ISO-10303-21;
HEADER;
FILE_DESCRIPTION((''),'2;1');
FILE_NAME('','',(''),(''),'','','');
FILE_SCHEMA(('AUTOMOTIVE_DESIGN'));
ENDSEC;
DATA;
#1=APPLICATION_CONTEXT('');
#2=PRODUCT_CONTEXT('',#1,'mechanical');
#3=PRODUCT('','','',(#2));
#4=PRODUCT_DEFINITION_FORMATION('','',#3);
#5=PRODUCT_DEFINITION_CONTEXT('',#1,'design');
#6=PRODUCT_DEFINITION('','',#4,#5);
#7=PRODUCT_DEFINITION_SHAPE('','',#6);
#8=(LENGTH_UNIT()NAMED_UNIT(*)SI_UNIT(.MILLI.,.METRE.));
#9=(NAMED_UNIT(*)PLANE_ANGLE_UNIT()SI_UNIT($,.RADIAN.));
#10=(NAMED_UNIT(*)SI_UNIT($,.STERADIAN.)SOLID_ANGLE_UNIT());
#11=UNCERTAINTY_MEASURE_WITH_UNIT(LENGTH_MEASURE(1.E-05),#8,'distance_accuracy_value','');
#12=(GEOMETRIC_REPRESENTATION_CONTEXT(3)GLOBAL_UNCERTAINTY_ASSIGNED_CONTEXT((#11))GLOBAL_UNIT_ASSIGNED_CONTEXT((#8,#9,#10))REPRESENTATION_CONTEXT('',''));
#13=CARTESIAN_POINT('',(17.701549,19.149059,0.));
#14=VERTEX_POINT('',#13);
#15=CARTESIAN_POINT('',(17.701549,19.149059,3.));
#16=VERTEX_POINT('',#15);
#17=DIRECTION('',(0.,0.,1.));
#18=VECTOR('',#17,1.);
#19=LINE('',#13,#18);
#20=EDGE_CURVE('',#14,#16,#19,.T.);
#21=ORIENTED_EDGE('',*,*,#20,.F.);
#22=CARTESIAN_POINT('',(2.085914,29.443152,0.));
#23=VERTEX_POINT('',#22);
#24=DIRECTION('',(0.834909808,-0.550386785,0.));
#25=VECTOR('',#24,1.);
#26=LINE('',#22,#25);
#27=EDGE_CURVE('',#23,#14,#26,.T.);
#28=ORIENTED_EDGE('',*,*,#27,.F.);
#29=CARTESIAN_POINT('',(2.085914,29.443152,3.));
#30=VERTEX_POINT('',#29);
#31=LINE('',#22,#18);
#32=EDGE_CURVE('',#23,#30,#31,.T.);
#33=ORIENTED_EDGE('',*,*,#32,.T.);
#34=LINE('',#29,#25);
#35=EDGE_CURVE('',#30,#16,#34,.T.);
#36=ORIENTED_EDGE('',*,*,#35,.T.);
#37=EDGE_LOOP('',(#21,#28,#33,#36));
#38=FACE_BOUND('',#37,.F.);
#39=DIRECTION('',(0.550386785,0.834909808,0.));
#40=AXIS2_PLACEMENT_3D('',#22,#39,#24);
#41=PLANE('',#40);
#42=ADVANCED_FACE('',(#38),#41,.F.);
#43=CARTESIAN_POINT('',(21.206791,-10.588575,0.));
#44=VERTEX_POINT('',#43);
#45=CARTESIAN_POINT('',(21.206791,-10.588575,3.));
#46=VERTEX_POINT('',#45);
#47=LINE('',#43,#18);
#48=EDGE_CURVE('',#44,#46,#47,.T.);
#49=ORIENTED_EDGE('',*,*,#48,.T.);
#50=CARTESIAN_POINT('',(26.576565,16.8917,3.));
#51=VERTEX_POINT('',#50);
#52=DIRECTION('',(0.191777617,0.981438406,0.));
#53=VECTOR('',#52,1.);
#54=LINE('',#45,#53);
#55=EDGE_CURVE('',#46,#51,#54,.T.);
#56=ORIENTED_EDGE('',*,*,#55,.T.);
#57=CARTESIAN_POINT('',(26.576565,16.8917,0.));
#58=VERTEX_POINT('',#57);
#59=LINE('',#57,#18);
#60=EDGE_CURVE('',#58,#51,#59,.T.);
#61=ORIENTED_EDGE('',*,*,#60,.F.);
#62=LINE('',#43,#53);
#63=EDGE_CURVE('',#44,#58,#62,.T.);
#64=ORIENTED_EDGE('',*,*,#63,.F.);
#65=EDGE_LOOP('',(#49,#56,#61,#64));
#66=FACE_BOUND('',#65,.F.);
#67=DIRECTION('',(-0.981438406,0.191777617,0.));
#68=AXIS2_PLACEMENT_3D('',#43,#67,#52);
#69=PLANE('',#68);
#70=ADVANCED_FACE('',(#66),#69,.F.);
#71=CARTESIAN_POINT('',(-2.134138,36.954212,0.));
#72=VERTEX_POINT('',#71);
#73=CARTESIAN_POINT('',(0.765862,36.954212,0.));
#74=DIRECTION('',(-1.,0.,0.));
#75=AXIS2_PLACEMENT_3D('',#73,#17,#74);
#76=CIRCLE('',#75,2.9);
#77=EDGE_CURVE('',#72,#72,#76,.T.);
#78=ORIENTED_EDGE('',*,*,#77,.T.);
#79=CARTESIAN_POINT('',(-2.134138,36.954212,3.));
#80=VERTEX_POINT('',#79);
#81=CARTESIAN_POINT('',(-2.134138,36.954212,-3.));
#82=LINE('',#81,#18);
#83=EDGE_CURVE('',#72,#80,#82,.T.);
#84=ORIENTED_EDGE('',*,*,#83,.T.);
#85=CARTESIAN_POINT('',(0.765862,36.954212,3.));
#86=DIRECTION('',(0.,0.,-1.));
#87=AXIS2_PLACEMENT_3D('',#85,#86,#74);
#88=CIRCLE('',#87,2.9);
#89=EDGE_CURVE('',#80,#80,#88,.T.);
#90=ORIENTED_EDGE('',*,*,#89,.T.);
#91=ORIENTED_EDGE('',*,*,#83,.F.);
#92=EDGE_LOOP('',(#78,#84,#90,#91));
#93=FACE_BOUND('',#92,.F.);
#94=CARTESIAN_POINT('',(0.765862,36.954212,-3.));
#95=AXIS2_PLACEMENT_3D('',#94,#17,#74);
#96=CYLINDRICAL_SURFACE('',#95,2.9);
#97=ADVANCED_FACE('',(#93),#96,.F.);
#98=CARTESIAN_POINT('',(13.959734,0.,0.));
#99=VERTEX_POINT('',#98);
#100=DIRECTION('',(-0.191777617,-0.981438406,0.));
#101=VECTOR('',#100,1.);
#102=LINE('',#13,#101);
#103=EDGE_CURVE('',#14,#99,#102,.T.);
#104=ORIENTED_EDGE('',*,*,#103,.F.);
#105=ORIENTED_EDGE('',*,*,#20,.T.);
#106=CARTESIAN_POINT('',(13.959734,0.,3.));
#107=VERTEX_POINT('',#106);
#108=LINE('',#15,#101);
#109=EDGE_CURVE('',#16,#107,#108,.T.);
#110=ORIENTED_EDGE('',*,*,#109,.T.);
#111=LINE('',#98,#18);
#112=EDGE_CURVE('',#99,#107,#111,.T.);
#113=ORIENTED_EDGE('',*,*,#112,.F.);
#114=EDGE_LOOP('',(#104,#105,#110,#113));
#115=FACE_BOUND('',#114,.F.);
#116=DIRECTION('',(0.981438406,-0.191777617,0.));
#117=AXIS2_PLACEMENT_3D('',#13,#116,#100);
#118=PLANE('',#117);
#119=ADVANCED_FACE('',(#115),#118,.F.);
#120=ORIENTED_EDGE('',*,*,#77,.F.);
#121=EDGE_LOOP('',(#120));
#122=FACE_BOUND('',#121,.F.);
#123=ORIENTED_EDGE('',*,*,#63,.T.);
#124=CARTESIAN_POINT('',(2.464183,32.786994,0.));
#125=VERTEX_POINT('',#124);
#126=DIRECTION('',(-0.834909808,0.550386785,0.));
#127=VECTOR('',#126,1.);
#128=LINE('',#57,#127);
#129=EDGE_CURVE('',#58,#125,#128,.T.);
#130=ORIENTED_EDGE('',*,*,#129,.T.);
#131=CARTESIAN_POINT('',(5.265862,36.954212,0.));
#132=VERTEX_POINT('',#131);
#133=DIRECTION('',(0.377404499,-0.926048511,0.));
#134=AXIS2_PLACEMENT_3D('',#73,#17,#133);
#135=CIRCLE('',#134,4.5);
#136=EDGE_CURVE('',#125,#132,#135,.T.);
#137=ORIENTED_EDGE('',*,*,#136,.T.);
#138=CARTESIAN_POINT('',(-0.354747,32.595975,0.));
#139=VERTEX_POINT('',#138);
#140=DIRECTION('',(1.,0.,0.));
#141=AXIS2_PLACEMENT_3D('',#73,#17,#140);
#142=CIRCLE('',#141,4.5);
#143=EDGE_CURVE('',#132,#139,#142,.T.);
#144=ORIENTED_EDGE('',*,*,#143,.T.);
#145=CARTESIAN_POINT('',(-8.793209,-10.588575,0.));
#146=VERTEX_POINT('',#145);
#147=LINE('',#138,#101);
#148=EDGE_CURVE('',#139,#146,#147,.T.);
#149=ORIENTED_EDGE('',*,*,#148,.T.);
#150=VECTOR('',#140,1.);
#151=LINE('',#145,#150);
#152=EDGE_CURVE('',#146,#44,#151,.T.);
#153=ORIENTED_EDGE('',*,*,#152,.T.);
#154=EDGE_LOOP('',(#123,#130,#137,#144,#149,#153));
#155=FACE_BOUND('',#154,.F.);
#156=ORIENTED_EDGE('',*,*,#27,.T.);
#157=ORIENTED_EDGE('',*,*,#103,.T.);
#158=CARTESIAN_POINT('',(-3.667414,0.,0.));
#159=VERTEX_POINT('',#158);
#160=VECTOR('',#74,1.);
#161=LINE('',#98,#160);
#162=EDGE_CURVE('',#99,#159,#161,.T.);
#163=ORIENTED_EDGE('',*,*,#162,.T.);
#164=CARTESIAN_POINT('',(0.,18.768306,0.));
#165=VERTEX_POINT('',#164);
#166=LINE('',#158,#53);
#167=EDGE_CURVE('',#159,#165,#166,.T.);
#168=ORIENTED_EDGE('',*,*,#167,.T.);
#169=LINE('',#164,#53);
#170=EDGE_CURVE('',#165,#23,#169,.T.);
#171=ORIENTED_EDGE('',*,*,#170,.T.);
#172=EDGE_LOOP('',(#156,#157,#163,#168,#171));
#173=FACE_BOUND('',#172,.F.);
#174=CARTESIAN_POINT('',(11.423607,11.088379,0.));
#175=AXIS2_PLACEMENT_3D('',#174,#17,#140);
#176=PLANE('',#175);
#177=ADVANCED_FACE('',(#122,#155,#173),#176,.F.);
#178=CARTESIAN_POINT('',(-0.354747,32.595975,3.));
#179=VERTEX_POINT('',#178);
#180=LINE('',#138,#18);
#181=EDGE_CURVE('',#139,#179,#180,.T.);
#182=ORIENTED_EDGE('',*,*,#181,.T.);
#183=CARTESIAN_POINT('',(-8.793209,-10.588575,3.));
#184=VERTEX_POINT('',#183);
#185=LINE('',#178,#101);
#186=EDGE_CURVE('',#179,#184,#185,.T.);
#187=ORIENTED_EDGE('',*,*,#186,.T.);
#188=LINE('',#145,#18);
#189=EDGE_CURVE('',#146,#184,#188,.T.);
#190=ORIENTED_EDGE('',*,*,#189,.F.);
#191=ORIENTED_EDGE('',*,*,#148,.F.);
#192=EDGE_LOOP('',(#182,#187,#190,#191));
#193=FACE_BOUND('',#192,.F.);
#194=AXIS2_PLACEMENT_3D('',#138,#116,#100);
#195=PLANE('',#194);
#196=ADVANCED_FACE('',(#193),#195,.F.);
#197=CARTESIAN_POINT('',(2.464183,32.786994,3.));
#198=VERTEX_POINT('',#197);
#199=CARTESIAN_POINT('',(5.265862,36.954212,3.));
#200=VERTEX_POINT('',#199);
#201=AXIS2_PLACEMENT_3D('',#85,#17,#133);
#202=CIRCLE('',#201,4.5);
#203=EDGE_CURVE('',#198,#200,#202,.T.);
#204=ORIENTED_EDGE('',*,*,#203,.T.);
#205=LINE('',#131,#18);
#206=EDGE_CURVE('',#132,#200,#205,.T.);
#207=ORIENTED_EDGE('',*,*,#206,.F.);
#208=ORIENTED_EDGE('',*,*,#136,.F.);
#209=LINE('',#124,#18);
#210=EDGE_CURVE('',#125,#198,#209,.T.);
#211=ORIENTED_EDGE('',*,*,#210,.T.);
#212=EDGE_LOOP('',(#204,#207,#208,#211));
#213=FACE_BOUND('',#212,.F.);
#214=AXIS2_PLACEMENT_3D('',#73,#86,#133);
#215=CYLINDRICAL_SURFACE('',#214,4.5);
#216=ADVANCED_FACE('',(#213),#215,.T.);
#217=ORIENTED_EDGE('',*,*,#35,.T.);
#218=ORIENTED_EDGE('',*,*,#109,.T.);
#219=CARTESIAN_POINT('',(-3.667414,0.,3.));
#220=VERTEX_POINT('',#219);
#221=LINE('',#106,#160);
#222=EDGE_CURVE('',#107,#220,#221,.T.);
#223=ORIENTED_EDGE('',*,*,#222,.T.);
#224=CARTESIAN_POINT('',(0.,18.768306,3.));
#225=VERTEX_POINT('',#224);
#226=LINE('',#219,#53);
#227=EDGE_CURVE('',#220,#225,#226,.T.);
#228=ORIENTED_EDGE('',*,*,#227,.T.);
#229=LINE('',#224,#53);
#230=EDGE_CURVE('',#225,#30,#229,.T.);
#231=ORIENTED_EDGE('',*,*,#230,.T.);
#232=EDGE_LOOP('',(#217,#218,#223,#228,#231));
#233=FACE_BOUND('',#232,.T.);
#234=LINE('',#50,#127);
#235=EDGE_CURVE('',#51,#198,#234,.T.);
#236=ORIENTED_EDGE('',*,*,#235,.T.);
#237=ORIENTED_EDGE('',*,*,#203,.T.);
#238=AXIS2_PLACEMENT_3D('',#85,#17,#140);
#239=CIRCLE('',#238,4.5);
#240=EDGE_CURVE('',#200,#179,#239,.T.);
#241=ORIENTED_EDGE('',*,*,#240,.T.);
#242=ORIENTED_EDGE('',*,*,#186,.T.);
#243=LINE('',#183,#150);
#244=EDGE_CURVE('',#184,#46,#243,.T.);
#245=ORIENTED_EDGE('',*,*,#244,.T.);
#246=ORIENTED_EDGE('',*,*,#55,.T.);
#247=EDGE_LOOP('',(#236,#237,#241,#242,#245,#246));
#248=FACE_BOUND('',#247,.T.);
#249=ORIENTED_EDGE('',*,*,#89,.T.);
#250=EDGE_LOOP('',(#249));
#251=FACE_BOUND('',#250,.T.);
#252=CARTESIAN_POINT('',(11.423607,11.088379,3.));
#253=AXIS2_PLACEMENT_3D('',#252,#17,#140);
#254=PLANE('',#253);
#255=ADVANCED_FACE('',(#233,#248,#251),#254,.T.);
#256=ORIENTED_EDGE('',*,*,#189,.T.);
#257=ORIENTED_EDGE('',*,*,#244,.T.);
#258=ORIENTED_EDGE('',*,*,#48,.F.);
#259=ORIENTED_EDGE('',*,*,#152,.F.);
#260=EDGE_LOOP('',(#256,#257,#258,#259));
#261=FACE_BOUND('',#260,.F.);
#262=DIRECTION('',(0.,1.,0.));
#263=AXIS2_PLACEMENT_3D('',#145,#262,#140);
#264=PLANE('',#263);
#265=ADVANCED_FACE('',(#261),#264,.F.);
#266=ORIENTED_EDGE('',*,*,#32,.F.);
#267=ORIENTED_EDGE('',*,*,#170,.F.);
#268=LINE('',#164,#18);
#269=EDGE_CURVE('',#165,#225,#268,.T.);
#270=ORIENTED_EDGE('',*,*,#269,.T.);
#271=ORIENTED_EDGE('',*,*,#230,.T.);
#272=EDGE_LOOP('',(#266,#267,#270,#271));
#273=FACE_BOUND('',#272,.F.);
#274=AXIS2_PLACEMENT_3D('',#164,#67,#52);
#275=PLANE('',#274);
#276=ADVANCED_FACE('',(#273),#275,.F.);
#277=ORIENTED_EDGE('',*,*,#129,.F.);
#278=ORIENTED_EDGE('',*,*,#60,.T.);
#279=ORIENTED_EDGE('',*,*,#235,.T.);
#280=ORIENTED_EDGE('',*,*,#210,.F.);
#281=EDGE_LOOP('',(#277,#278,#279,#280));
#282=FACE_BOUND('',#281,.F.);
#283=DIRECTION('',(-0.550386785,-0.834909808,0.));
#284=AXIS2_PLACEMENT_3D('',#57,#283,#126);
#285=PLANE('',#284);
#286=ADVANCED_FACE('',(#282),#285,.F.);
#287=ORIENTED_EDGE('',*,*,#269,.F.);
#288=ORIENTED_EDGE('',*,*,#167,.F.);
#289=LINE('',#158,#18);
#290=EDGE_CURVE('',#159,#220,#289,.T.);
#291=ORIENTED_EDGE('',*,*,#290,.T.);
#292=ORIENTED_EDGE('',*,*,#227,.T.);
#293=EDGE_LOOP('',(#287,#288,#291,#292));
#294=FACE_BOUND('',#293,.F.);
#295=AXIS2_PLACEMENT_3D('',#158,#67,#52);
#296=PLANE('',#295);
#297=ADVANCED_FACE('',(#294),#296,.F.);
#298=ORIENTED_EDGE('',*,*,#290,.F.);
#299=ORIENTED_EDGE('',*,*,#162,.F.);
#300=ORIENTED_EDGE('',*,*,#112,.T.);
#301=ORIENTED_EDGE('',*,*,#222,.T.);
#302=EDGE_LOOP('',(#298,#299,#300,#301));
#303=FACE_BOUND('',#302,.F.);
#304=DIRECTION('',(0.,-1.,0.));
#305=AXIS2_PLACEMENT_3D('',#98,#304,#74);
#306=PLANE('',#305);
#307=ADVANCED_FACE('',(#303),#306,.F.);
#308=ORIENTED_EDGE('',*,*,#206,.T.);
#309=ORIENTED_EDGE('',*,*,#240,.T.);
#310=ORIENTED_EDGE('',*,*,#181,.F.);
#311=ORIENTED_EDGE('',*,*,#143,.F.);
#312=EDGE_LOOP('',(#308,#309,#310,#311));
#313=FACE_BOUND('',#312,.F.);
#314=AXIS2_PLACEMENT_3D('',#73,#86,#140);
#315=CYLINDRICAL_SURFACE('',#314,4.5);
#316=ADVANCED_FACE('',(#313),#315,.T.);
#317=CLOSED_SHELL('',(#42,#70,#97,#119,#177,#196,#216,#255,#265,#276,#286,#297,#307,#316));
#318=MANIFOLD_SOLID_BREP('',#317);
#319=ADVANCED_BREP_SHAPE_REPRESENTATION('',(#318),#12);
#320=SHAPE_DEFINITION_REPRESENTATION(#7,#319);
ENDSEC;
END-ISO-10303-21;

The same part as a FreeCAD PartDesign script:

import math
import FreeCAD as App
import Part
import Sketcher

doc = App.newDocument("Part")
body = doc.addObject("PartDesign::Body", "Body")

# Sketch on XY plane
sketch1 = doc.addObject("Sketcher::SketchObject", "Sketch")
body.addObject(sketch1)
sketch1.AttachmentSupport = (doc.XY_Plane, [""])
sketch1.MapMode = "FlatFace"
sketch1.addGeometry([
    Part.ArcOfCircle(Part.Circle(App.Vector(0.765862, 36.954212, 0), App.Vector(0, 0, 1), 4.5), math.radians(0), math.radians(255.58021)),  # 0
    Part.LineSegment(App.Vector(-0.354747, 32.595975, 0), App.Vector(-8.793209, -10.588575, 0)),  # 1
    Part.LineSegment(App.Vector(-8.793209, -10.588575, 0), App.Vector(21.206791, -10.588575, 0)),  # 2
    Part.LineSegment(App.Vector(21.206791, -10.588575, 0), App.Vector(26.576565, 16.8917, 0)),  # 3
    Part.LineSegment(App.Vector(26.576565, 16.8917, 0), App.Vector(2.464183, 32.786994, 0)),  # 4
    Part.ArcOfCircle(Part.Circle(App.Vector(0.765862, 36.954212, 0), App.Vector(0, 0, 1), 4.5), math.radians(-67.826996), math.radians(0)),  # 5
    Part.LineSegment(App.Vector(0, 18.768306, 0), App.Vector(2.085914, 29.443152, 0)),  # 6
    Part.LineSegment(App.Vector(2.085914, 29.443152, 0), App.Vector(17.701549, 19.149059, 0)),  # 7
    Part.LineSegment(App.Vector(17.701549, 19.149059, 0), App.Vector(13.959734, 0, 0)),  # 8
    Part.LineSegment(App.Vector(13.959734, 0, 0), App.Vector(-3.667414, 0, 0)),  # 9
    Part.LineSegment(App.Vector(-3.667414, 0, 0), App.Vector(0, 18.768306, 0)),  # 10
], False)
sketch1.addConstraint([
    Sketcher.Constraint("Coincident", 0, 2, 1, 1),
    Sketcher.Constraint("Coincident", 1, 2, 2, 1),
    Sketcher.Constraint("Coincident", 2, 2, 3, 1),
    Sketcher.Constraint("Coincident", 3, 2, 4, 1),
    Sketcher.Constraint("Coincident", 4, 2, 5, 1),
    Sketcher.Constraint("Coincident", 5, 2, 0, 1),
    Sketcher.Constraint("Coincident", 6, 2, 7, 1),
    Sketcher.Constraint("Coincident", 7, 2, 8, 1),
    Sketcher.Constraint("Coincident", 8, 2, 9, 1),
    Sketcher.Constraint("Coincident", 9, 2, 10, 1),
    Sketcher.Constraint("Coincident", 10, 2, 6, 1),
    Sketcher.Constraint("Horizontal", 2),
    Sketcher.Constraint("Horizontal", 9),
    Sketcher.Constraint("Coincident", 5, 3, 0, 3),
    Sketcher.Constraint("PointOnObject", 8, 2, -1),
    Sketcher.Constraint("PointOnObject", 10, 2, -2),
    Sketcher.Constraint("Radius", 0, 4.5),
    Sketcher.Constraint("DistanceX", 2, 1, 2, 2, 30.0),
    Sketcher.Constraint("Distance", 3, 28.0),
    Sketcher.Constraint("DistanceX", 9, 2, 9, 1, 17.627148),
    Sketcher.Constraint("DistanceY", -1, 1, 3, 2, 16.8917),
    Sketcher.Constraint("Distance", 7, 18.703379),
    Sketcher.Constraint("Distance", 8, 19.511219),
    Sketcher.Constraint("DistanceX", 1, 2, -1, 1, 8.793209),
    Sketcher.Constraint("DistanceX", -1, 1, 7, 2, 17.701549),
    Sketcher.Constraint("DistanceY", -1, 1, 7, 2, 19.149059),
    Sketcher.Constraint("DistanceX", 0, 2, 0, 3, 1.12061),
    Sketcher.Constraint("DistanceX", 1, 2, 0, 2, 8.438461),
    Sketcher.Constraint("DistanceY", 1, 2, 0, 2, 43.18455),
    Sketcher.Constraint("DistanceX", 0, 2, 3, 2, 26.931312),
    Sketcher.Constraint("DistanceX", 0, 2, 4, 2, 2.81893),
    Sketcher.Constraint("DistanceY", 4, 2, 5, 2, 4.167218),
    Sketcher.Constraint("DistanceX", 6, 2, 4, 2, 0.378268),
    Sketcher.Constraint("DistanceY", 10, 2, 0, 2, 13.827668),
])
pad1 = doc.addObject("PartDesign::Pad", "Pad")
body.addObject(pad1)
pad1.Profile = sketch1
pad1.Length = 3

# Sketch on XY plane
sketch2 = doc.addObject("Sketcher::SketchObject", "Sketch001")
body.addObject(sketch2)
sketch2.AttachmentSupport = (doc.XY_Plane, [""])
sketch2.MapMode = "FlatFace"
sketch2.addGeometry(Part.Circle(App.Vector(0.8, 37, 0), App.Vector(0, 0, 1), 2.9), False)
sketch2.addConstraint([
    Sketcher.Constraint("Diameter", 0, 5.8),
    Sketcher.Constraint("DistanceX", -1, 1, 0, 3, 0.765862),
    Sketcher.Constraint("DistanceY", -1, 1, 0, 3, 36.954212),
])
doc.recompute()
hole = doc.addObject("PartDesign::Hole", "Hole")
body.addObject(hole)
hole.Profile = sketch2
hole.ThreadType = "None"
hole.Diameter = 5.8
hole.DepthType = "Dimension"
hole.Depth = 3
hole.DrillPoint = "Angled"
hole.DrillPointAngle = 118
hole.Reversed = True

doc.recompute()
